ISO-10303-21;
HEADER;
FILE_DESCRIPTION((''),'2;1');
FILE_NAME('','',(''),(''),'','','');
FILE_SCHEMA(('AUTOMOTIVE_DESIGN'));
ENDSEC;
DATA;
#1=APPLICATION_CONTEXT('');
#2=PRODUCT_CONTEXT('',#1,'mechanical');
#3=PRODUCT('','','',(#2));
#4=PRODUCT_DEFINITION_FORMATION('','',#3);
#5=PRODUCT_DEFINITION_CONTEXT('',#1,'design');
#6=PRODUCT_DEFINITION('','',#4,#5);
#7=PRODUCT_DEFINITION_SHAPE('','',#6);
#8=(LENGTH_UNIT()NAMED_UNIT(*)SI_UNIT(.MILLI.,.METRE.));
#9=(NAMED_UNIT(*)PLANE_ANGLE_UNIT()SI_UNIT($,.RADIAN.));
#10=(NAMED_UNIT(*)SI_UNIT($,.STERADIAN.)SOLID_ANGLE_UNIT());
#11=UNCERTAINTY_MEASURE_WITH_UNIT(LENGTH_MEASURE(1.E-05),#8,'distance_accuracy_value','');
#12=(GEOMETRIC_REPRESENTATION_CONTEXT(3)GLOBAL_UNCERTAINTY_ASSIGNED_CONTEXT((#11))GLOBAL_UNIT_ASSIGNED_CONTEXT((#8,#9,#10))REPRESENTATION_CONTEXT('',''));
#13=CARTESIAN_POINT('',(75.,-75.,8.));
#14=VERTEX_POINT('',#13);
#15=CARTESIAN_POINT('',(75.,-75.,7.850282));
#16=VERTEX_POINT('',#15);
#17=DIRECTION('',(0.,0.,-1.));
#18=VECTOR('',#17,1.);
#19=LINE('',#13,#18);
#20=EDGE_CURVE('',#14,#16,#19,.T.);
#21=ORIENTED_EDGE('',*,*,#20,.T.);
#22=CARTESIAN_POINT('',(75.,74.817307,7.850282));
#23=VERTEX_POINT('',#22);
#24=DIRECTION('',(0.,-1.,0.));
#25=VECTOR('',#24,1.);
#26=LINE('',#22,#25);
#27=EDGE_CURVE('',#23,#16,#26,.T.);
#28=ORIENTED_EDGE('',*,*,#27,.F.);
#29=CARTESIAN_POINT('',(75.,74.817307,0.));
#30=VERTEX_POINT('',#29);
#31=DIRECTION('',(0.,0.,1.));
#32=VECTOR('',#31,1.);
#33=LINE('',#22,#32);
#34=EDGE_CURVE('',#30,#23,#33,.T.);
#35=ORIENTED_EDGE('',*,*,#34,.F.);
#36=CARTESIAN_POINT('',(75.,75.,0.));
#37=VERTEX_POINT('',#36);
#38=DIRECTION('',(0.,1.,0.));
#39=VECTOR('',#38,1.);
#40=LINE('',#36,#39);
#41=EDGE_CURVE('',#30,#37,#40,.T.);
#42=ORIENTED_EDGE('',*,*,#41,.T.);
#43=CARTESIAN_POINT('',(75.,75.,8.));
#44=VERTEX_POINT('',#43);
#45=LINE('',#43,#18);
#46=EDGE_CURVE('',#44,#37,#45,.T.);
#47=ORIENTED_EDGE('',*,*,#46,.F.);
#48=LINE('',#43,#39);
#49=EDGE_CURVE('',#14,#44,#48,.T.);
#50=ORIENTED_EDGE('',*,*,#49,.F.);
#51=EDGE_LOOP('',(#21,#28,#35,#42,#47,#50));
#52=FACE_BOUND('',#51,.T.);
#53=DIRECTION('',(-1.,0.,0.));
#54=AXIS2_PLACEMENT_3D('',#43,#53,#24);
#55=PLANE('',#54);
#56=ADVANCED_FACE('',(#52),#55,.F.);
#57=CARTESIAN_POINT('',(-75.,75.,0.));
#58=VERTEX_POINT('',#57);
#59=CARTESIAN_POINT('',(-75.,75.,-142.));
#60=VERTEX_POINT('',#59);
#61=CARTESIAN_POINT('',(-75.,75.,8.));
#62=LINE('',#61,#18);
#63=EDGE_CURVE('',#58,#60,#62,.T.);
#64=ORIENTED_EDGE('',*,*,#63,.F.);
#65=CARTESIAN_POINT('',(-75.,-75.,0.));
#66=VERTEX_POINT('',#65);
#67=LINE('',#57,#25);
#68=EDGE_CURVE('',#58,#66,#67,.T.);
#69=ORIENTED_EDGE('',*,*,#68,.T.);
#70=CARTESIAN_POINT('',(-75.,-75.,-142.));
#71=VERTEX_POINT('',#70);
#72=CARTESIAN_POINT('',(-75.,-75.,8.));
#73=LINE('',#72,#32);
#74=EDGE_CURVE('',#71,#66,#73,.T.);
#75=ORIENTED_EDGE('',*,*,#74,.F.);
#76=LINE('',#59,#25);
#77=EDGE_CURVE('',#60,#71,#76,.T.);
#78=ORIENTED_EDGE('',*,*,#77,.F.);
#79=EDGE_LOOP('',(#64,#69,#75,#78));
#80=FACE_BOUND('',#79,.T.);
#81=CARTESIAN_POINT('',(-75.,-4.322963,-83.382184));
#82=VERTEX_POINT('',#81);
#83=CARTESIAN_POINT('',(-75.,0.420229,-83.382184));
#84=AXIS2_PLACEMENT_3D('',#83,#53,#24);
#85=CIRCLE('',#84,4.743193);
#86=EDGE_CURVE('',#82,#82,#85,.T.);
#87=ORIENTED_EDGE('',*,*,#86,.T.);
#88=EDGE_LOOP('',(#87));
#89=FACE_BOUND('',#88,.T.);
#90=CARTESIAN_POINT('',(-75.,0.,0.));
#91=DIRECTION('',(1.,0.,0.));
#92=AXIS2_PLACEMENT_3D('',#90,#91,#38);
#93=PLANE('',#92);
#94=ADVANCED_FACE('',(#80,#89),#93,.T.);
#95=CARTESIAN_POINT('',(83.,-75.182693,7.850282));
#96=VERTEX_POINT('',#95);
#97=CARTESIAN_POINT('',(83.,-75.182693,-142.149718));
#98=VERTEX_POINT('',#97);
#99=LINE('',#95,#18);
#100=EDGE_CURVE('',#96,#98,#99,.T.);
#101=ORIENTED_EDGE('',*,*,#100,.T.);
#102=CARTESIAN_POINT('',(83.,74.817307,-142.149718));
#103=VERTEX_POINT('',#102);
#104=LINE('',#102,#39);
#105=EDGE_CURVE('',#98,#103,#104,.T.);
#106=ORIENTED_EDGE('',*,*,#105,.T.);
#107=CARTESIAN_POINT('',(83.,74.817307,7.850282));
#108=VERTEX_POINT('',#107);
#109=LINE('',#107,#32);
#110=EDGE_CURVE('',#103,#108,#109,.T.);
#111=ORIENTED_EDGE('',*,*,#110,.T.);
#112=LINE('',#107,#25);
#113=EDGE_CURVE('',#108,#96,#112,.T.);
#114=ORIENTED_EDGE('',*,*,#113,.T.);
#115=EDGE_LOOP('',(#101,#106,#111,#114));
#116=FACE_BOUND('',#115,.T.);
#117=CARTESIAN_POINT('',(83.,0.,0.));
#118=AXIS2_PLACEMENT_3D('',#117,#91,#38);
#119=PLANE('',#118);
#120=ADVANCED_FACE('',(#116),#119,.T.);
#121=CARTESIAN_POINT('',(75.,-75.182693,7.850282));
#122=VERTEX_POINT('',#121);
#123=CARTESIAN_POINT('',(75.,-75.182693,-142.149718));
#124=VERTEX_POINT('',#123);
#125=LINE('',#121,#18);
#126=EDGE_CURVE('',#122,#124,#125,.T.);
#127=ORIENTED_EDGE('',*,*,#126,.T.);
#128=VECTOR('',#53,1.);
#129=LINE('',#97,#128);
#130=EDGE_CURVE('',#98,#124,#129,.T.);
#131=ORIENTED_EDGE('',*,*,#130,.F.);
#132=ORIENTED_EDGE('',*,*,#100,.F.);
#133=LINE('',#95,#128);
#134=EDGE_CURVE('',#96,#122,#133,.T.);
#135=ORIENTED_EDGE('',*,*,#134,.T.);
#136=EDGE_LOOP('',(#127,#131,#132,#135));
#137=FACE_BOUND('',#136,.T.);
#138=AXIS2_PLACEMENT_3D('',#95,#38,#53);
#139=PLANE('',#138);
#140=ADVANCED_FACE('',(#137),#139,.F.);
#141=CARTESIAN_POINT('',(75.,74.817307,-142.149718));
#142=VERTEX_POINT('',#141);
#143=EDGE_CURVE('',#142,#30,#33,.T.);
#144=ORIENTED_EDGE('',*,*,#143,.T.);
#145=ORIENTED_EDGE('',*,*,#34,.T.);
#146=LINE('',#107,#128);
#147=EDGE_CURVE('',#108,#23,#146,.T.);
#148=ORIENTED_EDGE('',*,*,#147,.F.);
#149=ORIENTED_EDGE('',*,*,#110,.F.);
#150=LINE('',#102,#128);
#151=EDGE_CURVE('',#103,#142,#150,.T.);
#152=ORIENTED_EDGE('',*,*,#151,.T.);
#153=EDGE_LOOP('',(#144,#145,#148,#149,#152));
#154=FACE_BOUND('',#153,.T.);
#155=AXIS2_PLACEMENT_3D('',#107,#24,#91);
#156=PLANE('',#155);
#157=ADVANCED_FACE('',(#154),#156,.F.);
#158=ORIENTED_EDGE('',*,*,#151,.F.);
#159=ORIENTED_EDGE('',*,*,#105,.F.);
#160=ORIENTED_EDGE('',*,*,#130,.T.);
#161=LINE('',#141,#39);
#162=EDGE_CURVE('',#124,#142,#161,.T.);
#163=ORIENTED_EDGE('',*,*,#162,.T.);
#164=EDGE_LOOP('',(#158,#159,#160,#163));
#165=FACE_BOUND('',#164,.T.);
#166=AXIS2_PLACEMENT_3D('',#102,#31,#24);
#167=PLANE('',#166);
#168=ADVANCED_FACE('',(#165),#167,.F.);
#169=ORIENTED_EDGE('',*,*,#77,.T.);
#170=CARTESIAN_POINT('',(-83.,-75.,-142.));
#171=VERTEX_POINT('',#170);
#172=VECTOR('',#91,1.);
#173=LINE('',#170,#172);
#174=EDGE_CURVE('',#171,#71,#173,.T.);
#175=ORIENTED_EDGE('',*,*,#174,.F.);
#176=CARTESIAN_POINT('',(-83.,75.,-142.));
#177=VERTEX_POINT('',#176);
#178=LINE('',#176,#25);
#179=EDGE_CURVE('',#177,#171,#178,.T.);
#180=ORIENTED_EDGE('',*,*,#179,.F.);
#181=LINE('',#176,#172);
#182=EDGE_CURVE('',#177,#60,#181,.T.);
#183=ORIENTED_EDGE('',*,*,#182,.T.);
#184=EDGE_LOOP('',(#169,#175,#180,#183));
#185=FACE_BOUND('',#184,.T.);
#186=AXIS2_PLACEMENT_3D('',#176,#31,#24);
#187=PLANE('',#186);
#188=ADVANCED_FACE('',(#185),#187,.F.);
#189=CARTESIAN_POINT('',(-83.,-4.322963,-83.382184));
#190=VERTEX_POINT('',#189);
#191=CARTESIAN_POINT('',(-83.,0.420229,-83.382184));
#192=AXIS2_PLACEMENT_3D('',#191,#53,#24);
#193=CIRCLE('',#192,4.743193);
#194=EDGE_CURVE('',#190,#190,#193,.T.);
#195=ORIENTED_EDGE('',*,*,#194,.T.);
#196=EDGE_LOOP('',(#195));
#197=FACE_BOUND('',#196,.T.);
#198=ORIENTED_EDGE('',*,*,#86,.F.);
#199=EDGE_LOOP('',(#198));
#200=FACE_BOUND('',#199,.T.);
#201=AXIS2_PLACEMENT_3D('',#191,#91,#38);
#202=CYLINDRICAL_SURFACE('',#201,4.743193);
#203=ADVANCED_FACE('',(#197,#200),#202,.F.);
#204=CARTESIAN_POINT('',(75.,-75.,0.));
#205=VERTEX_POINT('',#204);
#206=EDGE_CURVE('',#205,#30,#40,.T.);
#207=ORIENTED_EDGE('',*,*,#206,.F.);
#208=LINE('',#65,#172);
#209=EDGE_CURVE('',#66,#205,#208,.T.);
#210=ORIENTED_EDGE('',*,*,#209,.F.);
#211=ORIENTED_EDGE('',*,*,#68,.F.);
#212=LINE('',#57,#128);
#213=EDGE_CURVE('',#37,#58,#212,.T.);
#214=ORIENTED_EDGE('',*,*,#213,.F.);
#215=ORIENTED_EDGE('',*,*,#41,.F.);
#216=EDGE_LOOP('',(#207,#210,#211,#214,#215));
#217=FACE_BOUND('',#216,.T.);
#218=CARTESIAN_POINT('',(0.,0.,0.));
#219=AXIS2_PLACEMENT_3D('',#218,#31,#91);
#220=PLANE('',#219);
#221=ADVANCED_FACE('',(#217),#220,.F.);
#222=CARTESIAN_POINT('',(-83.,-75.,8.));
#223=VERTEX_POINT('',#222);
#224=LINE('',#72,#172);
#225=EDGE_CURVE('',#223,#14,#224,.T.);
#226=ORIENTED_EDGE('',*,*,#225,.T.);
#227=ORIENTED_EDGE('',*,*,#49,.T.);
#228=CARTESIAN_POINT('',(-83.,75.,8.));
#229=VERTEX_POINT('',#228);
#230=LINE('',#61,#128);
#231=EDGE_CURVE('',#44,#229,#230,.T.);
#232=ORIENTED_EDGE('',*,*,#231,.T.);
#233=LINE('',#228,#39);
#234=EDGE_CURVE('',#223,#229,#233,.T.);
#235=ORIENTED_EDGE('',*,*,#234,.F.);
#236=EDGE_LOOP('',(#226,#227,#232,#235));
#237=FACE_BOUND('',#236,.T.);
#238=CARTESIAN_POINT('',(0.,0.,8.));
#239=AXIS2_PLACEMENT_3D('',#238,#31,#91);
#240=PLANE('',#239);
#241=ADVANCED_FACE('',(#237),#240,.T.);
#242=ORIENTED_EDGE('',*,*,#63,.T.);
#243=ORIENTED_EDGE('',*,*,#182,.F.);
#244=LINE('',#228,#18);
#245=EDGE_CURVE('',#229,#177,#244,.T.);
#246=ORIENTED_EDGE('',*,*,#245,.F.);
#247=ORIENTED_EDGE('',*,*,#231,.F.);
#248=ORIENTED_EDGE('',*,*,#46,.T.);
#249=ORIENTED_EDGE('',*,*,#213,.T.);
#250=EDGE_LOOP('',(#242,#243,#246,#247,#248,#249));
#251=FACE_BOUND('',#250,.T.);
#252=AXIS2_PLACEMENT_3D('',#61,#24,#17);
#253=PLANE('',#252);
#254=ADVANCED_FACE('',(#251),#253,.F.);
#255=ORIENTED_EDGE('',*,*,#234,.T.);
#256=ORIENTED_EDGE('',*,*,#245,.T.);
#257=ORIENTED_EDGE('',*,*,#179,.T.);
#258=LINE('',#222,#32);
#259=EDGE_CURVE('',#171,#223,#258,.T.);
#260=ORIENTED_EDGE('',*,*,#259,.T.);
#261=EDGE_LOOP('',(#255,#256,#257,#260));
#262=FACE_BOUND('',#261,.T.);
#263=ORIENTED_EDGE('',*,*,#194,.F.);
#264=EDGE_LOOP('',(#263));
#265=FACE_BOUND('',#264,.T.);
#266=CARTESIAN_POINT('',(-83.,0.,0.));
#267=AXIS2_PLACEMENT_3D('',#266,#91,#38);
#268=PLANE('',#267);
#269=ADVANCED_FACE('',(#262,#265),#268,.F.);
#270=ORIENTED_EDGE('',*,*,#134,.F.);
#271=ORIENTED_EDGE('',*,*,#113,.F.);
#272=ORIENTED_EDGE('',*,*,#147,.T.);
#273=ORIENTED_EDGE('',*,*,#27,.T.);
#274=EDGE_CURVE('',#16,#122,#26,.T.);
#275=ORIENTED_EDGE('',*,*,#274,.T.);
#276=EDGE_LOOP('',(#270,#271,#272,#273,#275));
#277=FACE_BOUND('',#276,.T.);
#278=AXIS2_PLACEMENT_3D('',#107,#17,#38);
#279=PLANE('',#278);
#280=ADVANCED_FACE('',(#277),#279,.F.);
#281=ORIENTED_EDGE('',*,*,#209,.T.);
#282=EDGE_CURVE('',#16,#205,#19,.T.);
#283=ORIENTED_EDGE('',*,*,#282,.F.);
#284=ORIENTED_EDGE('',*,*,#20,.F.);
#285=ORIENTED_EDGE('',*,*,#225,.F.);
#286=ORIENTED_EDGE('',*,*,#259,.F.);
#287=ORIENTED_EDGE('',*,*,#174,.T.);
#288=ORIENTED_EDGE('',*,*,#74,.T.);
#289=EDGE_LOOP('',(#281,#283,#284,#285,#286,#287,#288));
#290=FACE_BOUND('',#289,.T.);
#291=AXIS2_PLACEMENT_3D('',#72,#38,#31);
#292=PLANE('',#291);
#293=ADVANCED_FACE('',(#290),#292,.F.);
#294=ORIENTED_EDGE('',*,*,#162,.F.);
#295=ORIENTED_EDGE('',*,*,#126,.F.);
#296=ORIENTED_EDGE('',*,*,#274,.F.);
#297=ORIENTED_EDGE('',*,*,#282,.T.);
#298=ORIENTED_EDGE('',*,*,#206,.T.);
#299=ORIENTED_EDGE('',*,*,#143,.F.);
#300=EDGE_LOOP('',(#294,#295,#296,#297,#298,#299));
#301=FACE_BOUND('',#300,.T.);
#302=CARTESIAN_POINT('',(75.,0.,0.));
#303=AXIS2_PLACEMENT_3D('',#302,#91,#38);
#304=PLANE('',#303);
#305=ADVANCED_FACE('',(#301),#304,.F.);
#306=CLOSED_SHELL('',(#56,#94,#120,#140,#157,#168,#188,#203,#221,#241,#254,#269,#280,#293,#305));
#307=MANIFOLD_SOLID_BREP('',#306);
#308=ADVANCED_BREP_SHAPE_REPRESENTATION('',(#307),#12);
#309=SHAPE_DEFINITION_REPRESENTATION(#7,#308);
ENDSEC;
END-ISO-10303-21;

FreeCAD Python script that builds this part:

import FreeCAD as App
import Part
import Sketcher
from FreeCAD import Vector


def add_polygon(sketch, points):
    """Adds a closed chain of lines whose ends are joined by coincident constraints."""
    first, n = sketch.GeometryCount, len(points)
    for a, b in zip(points, points[1:] + points[:1]):
        sketch.addGeometry(Part.LineSegment(App.Vector(*a, 0), App.Vector(*b, 0)), False)
    for i in range(n):
        sketch.addConstraint(Sketcher.Constraint("Coincident", first + i, 2, first + (i + 1) % n, 1))

doc = App.newDocument("Part")
params = doc.addObject("Spreadsheet::Sheet", "Params")
for row, (alias, value) in enumerate([
    ("sketch1_width", "150 mm"),
    ("pad1_length", "8 mm"),
    ("sketch2_width", "150 mm"),
    ("pad2_length", "8 mm"),
    ("sketch3_width", "150 mm"),
    ("pad3_length", "8 mm"),
], start=1):
    params.set(f"A{row}", alias)
    params.set(f"B{row}", "=" + value)
    params.setAlias(f"B{row}", alias)

body = doc.addObject("PartDesign::Body", "Body")

# Sketch on XY plane
sketch1 = body.newObject("Sketcher::SketchObject", "Sketch")
sketch1.AttachmentSupport = (doc.getObject("XY_Plane"), [""])
sketch1.MapMode = "FlatFace"
add_polygon(sketch1, [(-75, 75), (-75, -75), (75, -75), (75, 75)])  # lines 0-3
sketch1.addConstraint(Sketcher.Constraint("Vertical", 0))
sketch1.addConstraint(Sketcher.Constraint("Horizontal", 1))
sketch1.addConstraint(Sketcher.Constraint("Vertical", 2))
sketch1.addConstraint(Sketcher.Constraint("Horizontal", 3))
sketch1.addConstraint(Sketcher.Constraint("Symmetric", 0, 2, 2, 2, -1, 1))
sketch1.addConstraint(Sketcher.Constraint("Equal", 3, 0))
sketch1.addConstraint(Sketcher.Constraint("DistanceX", 1, 1, 1, 2, 150.0))
sketch1.setExpression("Constraints[10]", "Params.sketch1_width")
pad1 = body.newObject("PartDesign::Pad", "Pad")
pad1.Profile = sketch1
pad1.setExpression("Length", "Params.pad1_length")

# Sketch on YZ plane
sketch2 = body.newObject("Sketcher::SketchObject", "Sketch001")
sketch2.AttachmentSupport = (doc.getObject("YZ_Plane"), [""])
sketch2.MapMode = "FlatFace"
sketch2.AttachmentOffset = App.Placement(Vector(0, 0, 75), App.Rotation())
add_polygon(sketch2, [(75, 8), (-75, 8), (-75, -142), (75, -142)])  # lines 0-3
sketch2.addConstraint(Sketcher.Constraint("Horizontal", 0))
sketch2.addConstraint(Sketcher.Constraint("Vertical", 1))
sketch2.addConstraint(Sketcher.Constraint("Horizontal", 2))
sketch2.addConstraint(Sketcher.Constraint("Vertical", 3))
sketch2.addConstraint(Sketcher.Constraint("Equal", 2, 1))
sketch2.addConstraint(Sketcher.Constraint("DistanceX", 0, 2, 0, 1, 150.0))
sketch2.addConstraint(Sketcher.Constraint("DistanceX", 0, 2, -1, 1, 75.182693))
sketch2.addConstraint(Sketcher.Constraint("DistanceY", -1, 1, 0, 2, 7.850282))
sketch2.setExpression("Constraints[9]", "Params.sketch2_width")
pad2 = body.newObject("PartDesign::Pad", "Pad001")
pad2.Profile = sketch2
pad2.setExpression("Length", "Params.pad2_length")

# Sketch on YZ plane
sketch3 = body.newObject("Sketcher::SketchObject", "Sketch002")
sketch3.AttachmentSupport = (doc.getObject("YZ_Plane"), [""])
sketch3.MapMode = "FlatFace"
sketch3.AttachmentOffset = App.Placement(Vector(0, 0, -75), App.Rotation())
add_polygon(sketch3, [(75, -142), (-75, -142), (-75, 8), (75, 8)])  # lines 0-3
sketch3.addGeometry(Part.Circle(Vector(0.4, -83.4, 0), Vector(0, 0, 1), 4.7), False)  # 4
sketch3.addConstraint(Sketcher.Constraint("Horizontal", 0))
sketch3.addConstraint(Sketcher.Constraint("Vertical", 1))
sketch3.addConstraint(Sketcher.Constraint("Horizontal", 2))
sketch3.addConstraint(Sketcher.Constraint("Vertical", 3))
sketch3.addConstraint(Sketcher.Constraint("Equal", 2, 1))
sketch3.addConstraint(Sketcher.Constraint("DistanceX", 0, 2, 0, 1, 150.0))
sketch3.addConstraint(Sketcher.Constraint("DistanceX", 0, 2, -1, 1, 75.0))
sketch3.addConstraint(Sketcher.Constraint("DistanceY", 0, 2, -1, 1, 142.0))
sketch3.addConstraint(Sketcher.Constraint("Diameter", 4, 9.486385))
sketch3.addConstraint(Sketcher.Constraint("DistanceX", -1, 1, 4, 3, 0.420229))
sketch3.addConstraint(Sketcher.Constraint("DistanceY", 4, 3, -1, 1, 83.382184))
sketch3.setExpression("Constraints[9]", "Params.sketch3_width")
pad3 = body.newObject("PartDesign::Pad", "Pad002")
pad3.Profile = sketch3
pad3.setExpression("Length", "Params.pad3_length")
pad3.Reversed = True

doc.recompute()
